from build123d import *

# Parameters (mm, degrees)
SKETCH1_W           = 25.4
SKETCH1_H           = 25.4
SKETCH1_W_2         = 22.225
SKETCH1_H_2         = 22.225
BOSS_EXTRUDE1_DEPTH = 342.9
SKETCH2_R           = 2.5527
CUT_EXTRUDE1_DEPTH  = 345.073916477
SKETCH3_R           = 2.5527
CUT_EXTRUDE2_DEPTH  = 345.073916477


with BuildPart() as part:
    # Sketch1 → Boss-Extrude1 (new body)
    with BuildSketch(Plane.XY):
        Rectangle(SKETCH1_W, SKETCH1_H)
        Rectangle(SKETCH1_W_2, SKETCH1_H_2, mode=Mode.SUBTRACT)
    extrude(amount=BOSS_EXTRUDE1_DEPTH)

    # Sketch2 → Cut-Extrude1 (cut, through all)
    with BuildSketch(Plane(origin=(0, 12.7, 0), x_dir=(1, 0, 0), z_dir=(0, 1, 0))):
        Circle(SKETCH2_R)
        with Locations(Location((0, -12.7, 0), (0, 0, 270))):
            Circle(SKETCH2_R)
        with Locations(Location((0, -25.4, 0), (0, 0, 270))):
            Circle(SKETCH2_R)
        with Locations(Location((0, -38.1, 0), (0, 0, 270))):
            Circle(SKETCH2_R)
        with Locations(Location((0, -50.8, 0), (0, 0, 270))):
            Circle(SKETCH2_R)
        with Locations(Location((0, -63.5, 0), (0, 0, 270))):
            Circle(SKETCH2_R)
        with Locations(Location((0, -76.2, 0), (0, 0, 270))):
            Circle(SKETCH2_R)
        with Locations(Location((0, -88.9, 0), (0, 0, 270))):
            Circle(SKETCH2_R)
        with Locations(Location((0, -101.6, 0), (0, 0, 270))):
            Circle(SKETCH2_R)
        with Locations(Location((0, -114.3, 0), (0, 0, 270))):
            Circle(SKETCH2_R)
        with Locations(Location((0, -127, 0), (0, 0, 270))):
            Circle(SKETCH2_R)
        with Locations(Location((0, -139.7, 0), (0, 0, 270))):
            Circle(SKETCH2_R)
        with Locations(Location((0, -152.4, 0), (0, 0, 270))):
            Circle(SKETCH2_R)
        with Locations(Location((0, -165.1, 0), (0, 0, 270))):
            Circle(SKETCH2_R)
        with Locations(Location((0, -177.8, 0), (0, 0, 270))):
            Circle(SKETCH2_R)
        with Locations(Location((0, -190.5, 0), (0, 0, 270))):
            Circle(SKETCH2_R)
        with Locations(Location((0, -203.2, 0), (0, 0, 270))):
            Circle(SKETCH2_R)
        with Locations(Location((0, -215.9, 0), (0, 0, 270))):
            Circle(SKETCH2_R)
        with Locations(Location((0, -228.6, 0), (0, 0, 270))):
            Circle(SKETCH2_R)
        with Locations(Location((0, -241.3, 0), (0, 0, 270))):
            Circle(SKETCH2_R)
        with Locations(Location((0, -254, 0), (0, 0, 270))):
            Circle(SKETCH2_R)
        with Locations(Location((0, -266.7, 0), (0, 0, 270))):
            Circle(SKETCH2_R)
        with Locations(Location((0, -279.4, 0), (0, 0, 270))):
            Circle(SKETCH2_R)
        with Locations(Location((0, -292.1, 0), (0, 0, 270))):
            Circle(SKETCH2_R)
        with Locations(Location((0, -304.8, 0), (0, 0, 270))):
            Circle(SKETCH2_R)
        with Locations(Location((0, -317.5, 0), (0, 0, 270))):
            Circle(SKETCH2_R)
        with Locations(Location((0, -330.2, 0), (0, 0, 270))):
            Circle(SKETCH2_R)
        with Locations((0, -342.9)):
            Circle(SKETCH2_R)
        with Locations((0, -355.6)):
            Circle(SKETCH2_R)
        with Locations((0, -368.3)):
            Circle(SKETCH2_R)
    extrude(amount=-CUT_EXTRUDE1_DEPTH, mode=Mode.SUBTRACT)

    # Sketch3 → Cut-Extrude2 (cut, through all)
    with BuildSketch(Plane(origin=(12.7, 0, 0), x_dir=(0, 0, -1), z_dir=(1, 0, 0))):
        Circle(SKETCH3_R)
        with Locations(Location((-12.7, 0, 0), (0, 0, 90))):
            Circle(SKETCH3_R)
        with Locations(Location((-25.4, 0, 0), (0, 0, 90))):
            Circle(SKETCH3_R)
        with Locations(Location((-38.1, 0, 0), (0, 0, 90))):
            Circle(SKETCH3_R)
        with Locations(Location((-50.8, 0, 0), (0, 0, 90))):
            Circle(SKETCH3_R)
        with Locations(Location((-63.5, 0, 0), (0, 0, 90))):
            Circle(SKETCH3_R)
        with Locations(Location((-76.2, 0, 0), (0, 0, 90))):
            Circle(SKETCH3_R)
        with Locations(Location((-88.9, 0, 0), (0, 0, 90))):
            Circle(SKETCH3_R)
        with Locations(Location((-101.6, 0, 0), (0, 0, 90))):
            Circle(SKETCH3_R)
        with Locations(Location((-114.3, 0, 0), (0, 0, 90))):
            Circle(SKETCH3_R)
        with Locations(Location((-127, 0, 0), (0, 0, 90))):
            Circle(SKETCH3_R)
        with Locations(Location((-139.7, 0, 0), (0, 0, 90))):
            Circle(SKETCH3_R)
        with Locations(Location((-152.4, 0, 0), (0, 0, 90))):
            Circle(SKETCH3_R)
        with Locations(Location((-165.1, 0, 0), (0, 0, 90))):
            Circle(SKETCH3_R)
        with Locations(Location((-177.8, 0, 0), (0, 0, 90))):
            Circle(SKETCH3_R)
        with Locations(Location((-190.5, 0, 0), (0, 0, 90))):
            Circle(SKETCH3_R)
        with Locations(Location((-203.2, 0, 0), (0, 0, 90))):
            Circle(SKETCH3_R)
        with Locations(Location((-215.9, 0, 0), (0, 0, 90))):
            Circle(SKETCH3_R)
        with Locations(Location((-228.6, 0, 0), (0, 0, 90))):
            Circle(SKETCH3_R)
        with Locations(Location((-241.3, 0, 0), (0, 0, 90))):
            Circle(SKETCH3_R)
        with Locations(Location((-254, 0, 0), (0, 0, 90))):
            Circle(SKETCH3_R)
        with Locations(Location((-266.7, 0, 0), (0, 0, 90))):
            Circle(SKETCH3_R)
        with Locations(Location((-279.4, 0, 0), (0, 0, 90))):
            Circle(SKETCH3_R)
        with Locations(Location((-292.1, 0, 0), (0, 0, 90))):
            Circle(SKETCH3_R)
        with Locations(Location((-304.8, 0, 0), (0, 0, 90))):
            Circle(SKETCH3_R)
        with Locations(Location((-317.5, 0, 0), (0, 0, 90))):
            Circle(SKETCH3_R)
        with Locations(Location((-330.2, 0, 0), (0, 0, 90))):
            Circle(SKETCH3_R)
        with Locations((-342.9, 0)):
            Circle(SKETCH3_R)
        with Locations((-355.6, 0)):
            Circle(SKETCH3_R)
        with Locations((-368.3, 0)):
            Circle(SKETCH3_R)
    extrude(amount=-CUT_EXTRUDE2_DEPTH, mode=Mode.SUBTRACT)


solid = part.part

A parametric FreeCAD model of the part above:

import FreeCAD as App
import Part
import Sketcher

V = App.Vector
Q = App.Units.Quantity

doc = App.newDocument("Part")
params = doc.addObject("Spreadsheet::Sheet", "Params")
for row, (alias, value) in enumerate([
    ("sketch1_width", "1 in"),
    ("sketch1_width2", "0.875 in"),
    ("pad1_length", "13.5 in"),
    ("sketch2_diameter", "0.201 in"),
    ("sketch3_diameter", "0.201 in"),
], start=1):
    params.set(f"A{row}", alias)
    params.set(f"B{row}", "=" + value)
    params.setAlias(f"B{row}", alias)

body = doc.addObject("PartDesign::Body", "Body")

# Sketch on XY plane
sketch1 = doc.addObject("Sketcher::SketchObject", "Sketch")
body.addObject(sketch1)
sketch1.AttachmentSupport = (doc.XY_Plane, [""])
sketch1.MapMode = "FlatFace"
sketch1.addGeometry([
    Part.LineSegment(V(-12.7, 12.7, 0), V(-12.7, -12.7, 0)),  # 0
    Part.LineSegment(V(-12.7, -12.7, 0), V(12.7, -12.7, 0)),  # 1
    Part.LineSegment(V(12.7, -12.7, 0), V(12.7, 12.7, 0)),  # 2
    Part.LineSegment(V(12.7, 12.7, 0), V(-12.7, 12.7, 0)),  # 3
    Part.LineSegment(V(11.1125, -11.1125, 0), V(-11.1125, -11.1125, 0)),  # 4
    Part.LineSegment(V(-11.1125, -11.1125, 0), V(-11.1125, 11.1125, 0)),  # 5
    Part.LineSegment(V(-11.1125, 11.1125, 0), V(11.1125, 11.1125, 0)),  # 6
    Part.LineSegment(V(11.1125, 11.1125, 0), V(11.1125, -11.1125, 0)),  # 7
], False)
sketch1.addConstraint([
    Sketcher.Constraint("Coincident", 0, 2, 1, 1),
    Sketcher.Constraint("Coincident", 1, 2, 2, 1),
    Sketcher.Constraint("Coincident", 2, 2, 3, 1),
    Sketcher.Constraint("Coincident", 3, 2, 0, 1),
    Sketcher.Constraint("Coincident", 4, 2, 5, 1),
    Sketcher.Constraint("Coincident", 5, 2, 6, 1),
    Sketcher.Constraint("Coincident", 6, 2, 7, 1),
    Sketcher.Constraint("Coincident", 7, 2, 4, 1),
    Sketcher.Constraint("Vertical", 0),
    Sketcher.Constraint("Horizontal", 1),
    Sketcher.Constraint("Vertical", 2),
    Sketcher.Constraint("Horizontal", 3),
    Sketcher.Constraint("Horizontal", 4),
    Sketcher.Constraint("Vertical", 5),
    Sketcher.Constraint("Horizontal", 6),
    Sketcher.Constraint("Vertical", 7),
    Sketcher.Constraint("Symmetric", 0, 2, 2, 2, -1, 1),
    Sketcher.Constraint("Symmetric", 4, 2, 6, 2, -1, 1),
    Sketcher.Constraint("Equal", 3, 0),
    Sketcher.Constraint("Equal", 6, 5),
    Sketcher.Constraint("DistanceX", 1, 1, 1, 2, Q("1 in")),
    Sketcher.Constraint("DistanceX", 4, 2, 4, 1, Q("0.875 in")),
])
sketch1.setExpression("Constraints[20]", "Params.sketch1_width")
sketch1.setExpression("Constraints[21]", "Params.sketch1_width2")
pad1 = doc.addObject("PartDesign::Pad", "Pad")
body.addObject(pad1)
pad1.Profile = sketch1
pad1.setExpression("Length", "Params.pad1_length")

# Sketch on XZ plane
sketch2 = doc.addObject("Sketcher::SketchObject", "Sketch001")
body.addObject(sketch2)
sketch2.AttachmentSupport = (doc.XZ_Plane, [""])
sketch2.MapMode = "FlatFace"
sketch2.AttachmentOffset = App.Placement(V(0, 0, -0.5 * 25.4), App.Rotation())
sketch2.addGeometry([
    Part.Circle(V(0, 0, 0), V(0, 0, 1), 2.5527),  # 0
    Part.Circle(V(0, 12.7, 0), V(0, 0, 1), 2.5527),  # 1
    Part.Circle(V(0, 25.4, 0), V(0, 0, 1), 2.5527),  # 2
    Part.Circle(V(0, 38.1, 0), V(0, 0, 1), 2.5527),  # 3
    Part.Circle(V(0, 50.8, 0), V(0, 0, 1), 2.5527),  # 4
    Part.Circle(V(0, 63.5, 0), V(0, 0, 1), 2.5527),  # 5
    Part.Circle(V(0, 76.2, 0), V(0, 0, 1), 2.5527),  # 6
    Part.Circle(V(0, 88.9, 0), V(0, 0, 1), 2.5527),  # 7
    Part.Circle(V(0, 101.6, 0), V(0, 0, 1), 2.5527),  # 8
    Part.Circle(V(0, 114.3, 0), V(0, 0, 1), 2.5527),  # 9
    Part.Circle(V(0, 127, 0), V(0, 0, 1), 2.5527),  # 10
    Part.Circle(V(0, 139.7, 0), V(0, 0, 1), 2.5527),  # 11
    Part.Circle(V(0, 152.4, 0), V(0, 0, 1), 2.5527),  # 12
    Part.Circle(V(0, 165.1, 0), V(0, 0, 1), 2.5527),  # 13
    Part.Circle(V(0, 177.8, 0), V(0, 0, 1), 2.5527),  # 14
    Part.Circle(V(0, 190.5, 0), V(0, 0, 1), 2.5527),  # 15
    Part.Circle(V(0, 203.2, 0), V(0, 0, 1), 2.5527),  # 16
    Part.Circle(V(0, 215.9, 0), V(0, 0, 1), 2.5527),  # 17
    Part.Circle(V(0, 228.6, 0), V(0, 0, 1), 2.5527),  # 18
    Part.Circle(V(0, 241.3, 0), V(0, 0, 1), 2.5527),  # 19
    Part.Circle(V(0, 254, 0), V(0, 0, 1), 2.5527),  # 20
    Part.Circle(V(0, 266.7, 0), V(0, 0, 1), 2.5527),  # 21
    Part.Circle(V(0, 279.4, 0), V(0, 0, 1), 2.5527),  # 22
    Part.Circle(V(0, 292.1, 0), V(0, 0, 1), 2.5527),  # 23
    Part.Circle(V(0, 304.8, 0), V(0, 0, 1), 2.5527),  # 24
    Part.Circle(V(0, 317.5, 0), V(0, 0, 1), 2.5527),  # 25
    Part.Circle(V(0, 330.2, 0), V(0, 0, 1), 2.5527),  # 26
    Part.Circle(V(0, 342.9, 0), V(0, 0, 1), 2.5527),  # 27
    Part.Circle(V(0, 355.6, 0), V(0, 0, 1), 2.5527),  # 28
    Part.Circle(V(0, 368.3, 0), V(0, 0, 1), 2.5527),  # 29
], False)
sketch2.addConstraint([
    Sketcher.Constraint("Coincident", 0, 3, -1, 1),
    Sketcher.Constraint("Equal", 0, 1),
    Sketcher.Constraint("Equal", 1, 2),
    Sketcher.Constraint("Equal", 2, 3),
    Sketcher.Constraint("Equal", 3, 4),
    Sketcher.Constraint("Equal", 4, 5),
    Sketcher.Constraint("Equal", 5, 6),
    Sketcher.Constraint("Equal", 6, 7),
    Sketcher.Constraint("Equal", 7, 8),
    Sketcher.Constraint("Equal", 8, 9),
    Sketcher.Constraint("Equal", 9, 10),
    Sketcher.Constraint("Equal", 10, 11),
    Sketcher.Constraint("Equal", 11, 12),
    Sketcher.Constraint("Equal", 12, 13),
    Sketcher.Constraint("Equal", 13, 14),
    Sketcher.Constraint("Equal", 14, 15),
    Sketcher.Constraint("Equal", 15, 16),
    Sketcher.Constraint("Equal", 16, 17),
    Sketcher.Constraint("Equal", 17, 18),
    Sketcher.Constraint("Equal", 18, 19),
    Sketcher.Constraint("Equal", 19, 20),
    Sketcher.Constraint("Equal", 20, 21),
    Sketcher.Constraint("Equal", 21, 22),
    Sketcher.Constraint("Equal", 22, 23),
    Sketcher.Constraint("Equal", 23, 24),
    Sketcher.Constraint("Equal", 24, 25),
    Sketcher.Constraint("Equal", 25, 26),
    Sketcher.Constraint("Equal", 26, 27),
    Sketcher.Constraint("Equal", 27, 28),
    Sketcher.Constraint("Equal", 28, 29),
    Sketcher.Constraint("PointOnObject", 1, 3, -2),
    Sketcher.Constraint("PointOnObject", 2, 3, -2),
    Sketcher.Constraint("PointOnObject", 3, 3, -2),
    Sketcher.Constraint("PointOnObject", 4, 3, -2),
    Sketcher.Constraint("PointOnObject", 5, 3, -2),
    Sketcher.Constraint("PointOnObject", 6, 3, -2),
    Sketcher.Constraint("PointOnObject", 7, 3, -2),
    Sketcher.Constraint("PointOnObject", 8, 3, -2),
    Sketcher.Constraint("PointOnObject", 9, 3, -2),
    Sketcher.Constraint("PointOnObject", 10, 3, -2),
    Sketcher.Constraint("PointOnObject", 11, 3, -2),
    Sketcher.Constraint("PointOnObject", 12, 3, -2),
    Sketcher.Constraint("PointOnObject", 13, 3, -2),
    Sketcher.Constraint("PointOnObject", 14, 3, -2),
    Sketcher.Constraint("PointOnObject", 15, 3, -2),
    Sketcher.Constraint("PointOnObject", 16, 3, -2),
    Sketcher.Constraint("PointOnObject", 17, 3, -2),
    Sketcher.Constraint("PointOnObject", 18, 3, -2),
    Sketcher.Constraint("PointOnObject", 19, 3, -2),
    Sketcher.Constraint("PointOnObject", 20, 3, -2),
    Sketcher.Constraint("PointOnObject", 21, 3, -2),
    Sketcher.Constraint("PointOnObject", 22, 3, -2),
    Sketcher.Constraint("PointOnObject", 23, 3, -2),
    Sketcher.Constraint("PointOnObject", 24, 3, -2),
    Sketcher.Constraint("PointOnObject", 25, 3, -2),
    Sketcher.Constraint("PointOnObject", 26, 3, -2),
    Sketcher.Constraint("PointOnObject", 27, 3, -2),
    Sketcher.Constraint("PointOnObject", 28, 3, -2),
    Sketcher.Constraint("PointOnObject", 29, 3, -2),
    Sketcher.Constraint("Diameter", 0, Q("0.201 in")),
    Sketcher.Constraint("DistanceY", -1, 1, 2, 3, Q("1 in")),
    Sketcher.Constraint("DistanceY", -1, 1, 4, 3, Q("2 in")),
    Sketcher.Constraint("DistanceY", -1, 1, 6, 3, Q("3 in")),
    Sketcher.Constraint("DistanceY", -1, 1, 8, 3, Q("4 in")),
    Sketcher.Constraint("DistanceY", -1, 1, 10, 3, Q("5 in")),
    Sketcher.Constraint("DistanceY", -1, 1, 12, 3, Q("6 in")),
    Sketcher.Constraint("DistanceY", -1, 1, 14, 3, Q("7 in")),
    Sketcher.Constraint("DistanceY", -1, 1, 16, 3, Q("8 in")),
    Sketcher.Constraint("DistanceY", -1, 1, 18, 3, Q("9 in")),
    Sketcher.Constraint("DistanceY", -1, 1, 20, 3, Q("10 in")),
    Sketcher.Constraint("DistanceY", -1, 1, 22, 3, Q("11 in")),
    Sketcher.Constraint("DistanceY", -1, 1, 24, 3, Q("12 in")),
    Sketcher.Constraint("DistanceY", -1, 1, 26, 3, Q("13 in")),
    Sketcher.Constraint("DistanceY", -1, 1, 28, 3, Q("14 in")),
    Sketcher.Constraint("DistanceY", 1, 3, 3, 3, Q("1 in")),
    Sketcher.Constraint("DistanceY", 3, 3, 5, 3, Q("1 in")),
    Sketcher.Constraint("DistanceY", 5, 3, 7, 3, Q("1 in")),
    Sketcher.Constraint("DistanceY", 7, 3, 9, 3, Q("1 in")),
    Sketcher.Constraint("DistanceY", 9, 3, 11, 3, Q("1 in")),
    Sketcher.Constraint("DistanceY", 11, 3, 13, 3, Q("1 in")),
    Sketcher.Constraint("DistanceY", 13, 3, 15, 3, Q("1 in")),
    Sketcher.Constraint("DistanceY", 15, 3, 17, 3, Q("1 in")),
    Sketcher.Constraint("DistanceY", 17, 3, 19, 3, Q("1 in")),
    Sketcher.Constraint("DistanceY", 19, 3, 21, 3, Q("1 in")),
    Sketcher.Constraint("DistanceY", 21, 3, 23, 3, Q("1 in")),
    Sketcher.Constraint("DistanceY", 23, 3, 25, 3, Q("1 in")),
    Sketcher.Constraint("DistanceY", 25, 3, 27, 3, Q("1 in")),
    Sketcher.Constraint("DistanceY", 27, 3, 29, 3, Q("1 in")),
    Sketcher.Constraint("DistanceY", -1, 1, 1, 3, Q("0.5 in")),
])
sketch2.setExpression("Constraints[59]", "Params.sketch2_diameter")
pocket1 = doc.addObject("PartDesign::Pocket", "Pocket")
body.addObject(pocket1)
pocket1.Profile = sketch2
pocket1.Type = "ThroughAll"
pocket1.Reversed = True

# Sketch on YZ plane
sketch3 = doc.addObject("Sketcher::SketchObject", "Sketch002")
body.addObject(sketch3)
sketch3.AttachmentSupport = (doc.YZ_Plane, [""])
sketch3.MapMode = "FlatFace"
sketch3.AttachmentOffset = App.Placement(V(0, 0, 0.5 * 25.4), App.Rotation())
sketch3.addGeometry([
    Part.Circle(V(0, 0, 0), V(0, 0, 1), 2.5527),  # 0
    Part.Circle(V(0, 12.7, 0), V(0, 0, 1), 2.5527),  # 1
    Part.Circle(V(0, 25.4, 0), V(0, 0, 1), 2.5527),  # 2
    Part.Circle(V(0, 38.1, 0), V(0, 0, 1), 2.5527),  # 3
    Part.Circle(V(0, 50.8, 0), V(0, 0, 1), 2.5527),  # 4
    Part.Circle(V(0, 63.5, 0), V(0, 0, 1), 2.5527),  # 5
    Part.Circle(V(0, 76.2, 0), V(0, 0, 1), 2.5527),  # 6
    Part.Circle(V(0, 88.9, 0), V(0, 0, 1), 2.5527),  # 7
    Part.Circle(V(0, 101.6, 0), V(0, 0, 1), 2.5527),  # 8
    Part.Circle(V(0, 114.3, 0), V(0, 0, 1), 2.5527),  # 9
    Part.Circle(V(0, 127, 0), V(0, 0, 1), 2.5527),  # 10
    Part.Circle(V(0, 139.7, 0), V(0, 0, 1), 2.5527),  # 11
    Part.Circle(V(0, 152.4, 0), V(0, 0, 1), 2.5527),  # 12
    Part.Circle(V(0, 165.1, 0), V(0, 0, 1), 2.5527),  # 13
    Part.Circle(V(0, 177.8, 0), V(0, 0, 1), 2.5527),  # 14
    Part.Circle(V(0, 190.5, 0), V(0, 0, 1), 2.5527),  # 15
    Part.Circle(V(0, 203.2, 0), V(0, 0, 1), 2.5527),  # 16
    Part.Circle(V(0, 215.9, 0), V(0, 0, 1), 2.5527),  # 17
    Part.Circle(V(0, 228.6, 0), V(0, 0, 1), 2.5527),  # 18
    Part.Circle(V(0, 241.3, 0), V(0, 0, 1), 2.5527),  # 19
    Part.Circle(V(0, 254, 0), V(0, 0, 1), 2.5527),  # 20
    Part.Circle(V(0, 266.7, 0), V(0, 0, 1), 2.5527),  # 21
    Part.Circle(V(0, 279.4, 0), V(0, 0, 1), 2.5527),  # 22
    Part.Circle(V(0, 292.1, 0), V(0, 0, 1), 2.5527),  # 23
    Part.Circle(V(0, 304.8, 0), V(0, 0, 1), 2.5527),  # 24
    Part.Circle(V(0, 317.5, 0), V(0, 0, 1), 2.5527),  # 25
    Part.Circle(V(0, 330.2, 0), V(0, 0, 1), 2.5527),  # 26
    Part.Circle(V(0, 342.9, 0), V(0, 0, 1), 2.5527),  # 27
    Part.Circle(V(0, 355.6, 0), V(0, 0, 1), 2.5527),  # 28
    Part.Circle(V(0, 368.3, 0), V(0, 0, 1), 2.5527),  # 29
], False)
sketch3.addConstraint([
    Sketcher.Constraint("Coincident", 0, 3, -1, 1),
    Sketcher.Constraint("Equal", 0, 1),
    Sketcher.Constraint("Equal", 1, 2),
    Sketcher.Constraint("Equal", 2, 3),
    Sketcher.Constraint("Equal", 3, 4),
    Sketcher.Constraint("Equal", 4, 5),
    Sketcher.Constraint("Equal", 5, 6),
    Sketcher.Constraint("Equal", 6, 7),
    Sketcher.Constraint("Equal", 7, 8),
    Sketcher.Constraint("Equal", 8, 9),
    Sketcher.Constraint("Equal", 9, 10),
    Sketcher.Constraint("Equal", 10, 11),
    Sketcher.Constraint("Equal", 11, 12),
    Sketcher.Constraint("Equal", 12, 13),
    Sketcher.Constraint("Equal", 13, 14),
    Sketcher.Constraint("Equal", 14, 15),
    Sketcher.Constraint("Equal", 15, 16),
    Sketcher.Constraint("Equal", 16, 17),
    Sketcher.Constraint("Equal", 17, 18),
    Sketcher.Constraint("Equal", 18, 19),
    Sketcher.Constraint("Equal", 19, 20),
    Sketcher.Constraint("Equal", 20, 21),
    Sketcher.Constraint("Equal", 21, 22),
    Sketcher.Constraint("Equal", 22, 23),
    Sketcher.Constraint("Equal", 23, 24),
    Sketcher.Constraint("Equal", 24, 25),
    Sketcher.Constraint("Equal", 25, 26),
    Sketcher.Constraint("Equal", 26, 27),
    Sketcher.Constraint("Equal", 27, 28),
    Sketcher.Constraint("Equal", 28, 29),
    Sketcher.Constraint("PointOnObject", 1, 3, -2),
    Sketcher.Constraint("PointOnObject", 2, 3, -2),
    Sketcher.Constraint("PointOnObject", 3, 3, -2),
    Sketcher.Constraint("PointOnObject", 4, 3, -2),
    Sketcher.Constraint("PointOnObject", 5, 3, -2),
    Sketcher.Constraint("PointOnObject", 6, 3, -2),
    Sketcher.Constraint("PointOnObject", 7, 3, -2),
    Sketcher.Constraint("PointOnObject", 8, 3, -2),
    Sketcher.Constraint("PointOnObject", 9, 3, -2),
    Sketcher.Constraint("PointOnObject", 10, 3, -2),
    Sketcher.Constraint("PointOnObject", 11, 3, -2),
    Sketcher.Constraint("PointOnObject", 12, 3, -2),
    Sketcher.Constraint("PointOnObject", 13, 3, -2),
    Sketcher.Constraint("PointOnObject", 14, 3, -2),
    Sketcher.Constraint("PointOnObject", 15, 3, -2),
    Sketcher.Constraint("PointOnObject", 16, 3, -2),
    Sketcher.Constraint("PointOnObject", 17, 3, -2),
    Sketcher.Constraint("PointOnObject", 18, 3, -2),
    Sketcher.Constraint("PointOnObject", 19, 3, -2),
    Sketcher.Constraint("PointOnObject", 20, 3, -2),
    Sketcher.Constraint("PointOnObject", 21, 3, -2),
    Sketcher.Constraint("PointOnObject", 22, 3, -2),
    Sketcher.Constraint("PointOnObject", 23, 3, -2),
    Sketcher.Constraint("PointOnObject", 24, 3, -2),
    Sketcher.Constraint("PointOnObject", 25, 3, -2),
    Sketcher.Constraint("PointOnObject", 26, 3, -2),
    Sketcher.Constraint("PointOnObject", 27, 3, -2),
    Sketcher.Constraint("PointOnObject", 28, 3, -2),
    Sketcher.Constraint("PointOnObject", 29, 3, -2),
    Sketcher.Constraint("Diameter", 0, Q("0.201 in")),
    Sketcher.Constraint("DistanceY", -1, 1, 2, 3, Q("1 in")),
    Sketcher.Constraint("DistanceY", -1, 1, 4, 3, Q("2 in")),
    Sketcher.Constraint("DistanceY", -1, 1, 6, 3, Q("3 in")),
    Sketcher.Constraint("DistanceY", -1, 1, 8, 3, Q("4 in")),
    Sketcher.Constraint("DistanceY", -1, 1, 10, 3, Q("5 in")),
    Sketcher.Constraint("DistanceY", -1, 1, 12, 3, Q("6 in")),
    Sketcher.Constraint("DistanceY", -1, 1, 14, 3, Q("7 in")),
    Sketcher.Constraint("DistanceY", -1, 1, 16, 3, Q("8 in")),
    Sketcher.Constraint("DistanceY", -1, 1, 18, 3, Q("9 in")),
    Sketcher.Constraint("DistanceY", -1, 1, 20, 3, Q("10 in")),
    Sketcher.Constraint("DistanceY", -1, 1, 22, 3, Q("11 in")),
    Sketcher.Constraint("DistanceY", -1, 1, 24, 3, Q("12 in")),
    Sketcher.Constraint("DistanceY", -1, 1, 26, 3, Q("13 in")),
    Sketcher.Constraint("DistanceY", -1, 1, 28, 3, Q("14 in")),
    Sketcher.Constraint("DistanceY", 1, 3, 3, 3, Q("1 in")),
    Sketcher.Constraint("DistanceY", 3, 3, 5, 3, Q("1 in")),
    Sketcher.Constraint("DistanceY", 5, 3, 7, 3, Q("1 in")),
    Sketcher.Constraint("DistanceY", 7, 3, 9, 3, Q("1 in")),
    Sketcher.Constraint("DistanceY", 9, 3, 11, 3, Q("1 in")),
    Sketcher.Constraint("DistanceY", 11, 3, 13, 3, Q("1 in")),
    Sketcher.Constraint("DistanceY", 13, 3, 15, 3, Q("1 in")),
    Sketcher.Constraint("DistanceY", 15, 3, 17, 3, Q("1 in")),
    Sketcher.Constraint("DistanceY", 17, 3, 19, 3, Q("1 in")),
    Sketcher.Constraint("DistanceY", 19, 3, 21, 3, Q("1 in")),
    Sketcher.Constraint("DistanceY", 21, 3, 23, 3, Q("1 in")),
    Sketcher.Constraint("DistanceY", 23, 3, 25, 3, Q("1 in")),
    Sketcher.Constraint("DistanceY", 25, 3, 27, 3, Q("1 in")),
    Sketcher.Constraint("DistanceY", 27, 3, 29, 3, Q("1 in")),
    Sketcher.Constraint("DistanceY", -1, 1, 1, 3, Q("0.5 in")),
])
sketch3.setExpression("Constraints[59]", "Params.sketch3_diameter")
pocket2 = doc.addObject("PartDesign::Pocket", "Pocket001")
body.addObject(pocket2)
pocket2.Profile = sketch3
pocket2.Type = "ThroughAll"

doc.recompute()
